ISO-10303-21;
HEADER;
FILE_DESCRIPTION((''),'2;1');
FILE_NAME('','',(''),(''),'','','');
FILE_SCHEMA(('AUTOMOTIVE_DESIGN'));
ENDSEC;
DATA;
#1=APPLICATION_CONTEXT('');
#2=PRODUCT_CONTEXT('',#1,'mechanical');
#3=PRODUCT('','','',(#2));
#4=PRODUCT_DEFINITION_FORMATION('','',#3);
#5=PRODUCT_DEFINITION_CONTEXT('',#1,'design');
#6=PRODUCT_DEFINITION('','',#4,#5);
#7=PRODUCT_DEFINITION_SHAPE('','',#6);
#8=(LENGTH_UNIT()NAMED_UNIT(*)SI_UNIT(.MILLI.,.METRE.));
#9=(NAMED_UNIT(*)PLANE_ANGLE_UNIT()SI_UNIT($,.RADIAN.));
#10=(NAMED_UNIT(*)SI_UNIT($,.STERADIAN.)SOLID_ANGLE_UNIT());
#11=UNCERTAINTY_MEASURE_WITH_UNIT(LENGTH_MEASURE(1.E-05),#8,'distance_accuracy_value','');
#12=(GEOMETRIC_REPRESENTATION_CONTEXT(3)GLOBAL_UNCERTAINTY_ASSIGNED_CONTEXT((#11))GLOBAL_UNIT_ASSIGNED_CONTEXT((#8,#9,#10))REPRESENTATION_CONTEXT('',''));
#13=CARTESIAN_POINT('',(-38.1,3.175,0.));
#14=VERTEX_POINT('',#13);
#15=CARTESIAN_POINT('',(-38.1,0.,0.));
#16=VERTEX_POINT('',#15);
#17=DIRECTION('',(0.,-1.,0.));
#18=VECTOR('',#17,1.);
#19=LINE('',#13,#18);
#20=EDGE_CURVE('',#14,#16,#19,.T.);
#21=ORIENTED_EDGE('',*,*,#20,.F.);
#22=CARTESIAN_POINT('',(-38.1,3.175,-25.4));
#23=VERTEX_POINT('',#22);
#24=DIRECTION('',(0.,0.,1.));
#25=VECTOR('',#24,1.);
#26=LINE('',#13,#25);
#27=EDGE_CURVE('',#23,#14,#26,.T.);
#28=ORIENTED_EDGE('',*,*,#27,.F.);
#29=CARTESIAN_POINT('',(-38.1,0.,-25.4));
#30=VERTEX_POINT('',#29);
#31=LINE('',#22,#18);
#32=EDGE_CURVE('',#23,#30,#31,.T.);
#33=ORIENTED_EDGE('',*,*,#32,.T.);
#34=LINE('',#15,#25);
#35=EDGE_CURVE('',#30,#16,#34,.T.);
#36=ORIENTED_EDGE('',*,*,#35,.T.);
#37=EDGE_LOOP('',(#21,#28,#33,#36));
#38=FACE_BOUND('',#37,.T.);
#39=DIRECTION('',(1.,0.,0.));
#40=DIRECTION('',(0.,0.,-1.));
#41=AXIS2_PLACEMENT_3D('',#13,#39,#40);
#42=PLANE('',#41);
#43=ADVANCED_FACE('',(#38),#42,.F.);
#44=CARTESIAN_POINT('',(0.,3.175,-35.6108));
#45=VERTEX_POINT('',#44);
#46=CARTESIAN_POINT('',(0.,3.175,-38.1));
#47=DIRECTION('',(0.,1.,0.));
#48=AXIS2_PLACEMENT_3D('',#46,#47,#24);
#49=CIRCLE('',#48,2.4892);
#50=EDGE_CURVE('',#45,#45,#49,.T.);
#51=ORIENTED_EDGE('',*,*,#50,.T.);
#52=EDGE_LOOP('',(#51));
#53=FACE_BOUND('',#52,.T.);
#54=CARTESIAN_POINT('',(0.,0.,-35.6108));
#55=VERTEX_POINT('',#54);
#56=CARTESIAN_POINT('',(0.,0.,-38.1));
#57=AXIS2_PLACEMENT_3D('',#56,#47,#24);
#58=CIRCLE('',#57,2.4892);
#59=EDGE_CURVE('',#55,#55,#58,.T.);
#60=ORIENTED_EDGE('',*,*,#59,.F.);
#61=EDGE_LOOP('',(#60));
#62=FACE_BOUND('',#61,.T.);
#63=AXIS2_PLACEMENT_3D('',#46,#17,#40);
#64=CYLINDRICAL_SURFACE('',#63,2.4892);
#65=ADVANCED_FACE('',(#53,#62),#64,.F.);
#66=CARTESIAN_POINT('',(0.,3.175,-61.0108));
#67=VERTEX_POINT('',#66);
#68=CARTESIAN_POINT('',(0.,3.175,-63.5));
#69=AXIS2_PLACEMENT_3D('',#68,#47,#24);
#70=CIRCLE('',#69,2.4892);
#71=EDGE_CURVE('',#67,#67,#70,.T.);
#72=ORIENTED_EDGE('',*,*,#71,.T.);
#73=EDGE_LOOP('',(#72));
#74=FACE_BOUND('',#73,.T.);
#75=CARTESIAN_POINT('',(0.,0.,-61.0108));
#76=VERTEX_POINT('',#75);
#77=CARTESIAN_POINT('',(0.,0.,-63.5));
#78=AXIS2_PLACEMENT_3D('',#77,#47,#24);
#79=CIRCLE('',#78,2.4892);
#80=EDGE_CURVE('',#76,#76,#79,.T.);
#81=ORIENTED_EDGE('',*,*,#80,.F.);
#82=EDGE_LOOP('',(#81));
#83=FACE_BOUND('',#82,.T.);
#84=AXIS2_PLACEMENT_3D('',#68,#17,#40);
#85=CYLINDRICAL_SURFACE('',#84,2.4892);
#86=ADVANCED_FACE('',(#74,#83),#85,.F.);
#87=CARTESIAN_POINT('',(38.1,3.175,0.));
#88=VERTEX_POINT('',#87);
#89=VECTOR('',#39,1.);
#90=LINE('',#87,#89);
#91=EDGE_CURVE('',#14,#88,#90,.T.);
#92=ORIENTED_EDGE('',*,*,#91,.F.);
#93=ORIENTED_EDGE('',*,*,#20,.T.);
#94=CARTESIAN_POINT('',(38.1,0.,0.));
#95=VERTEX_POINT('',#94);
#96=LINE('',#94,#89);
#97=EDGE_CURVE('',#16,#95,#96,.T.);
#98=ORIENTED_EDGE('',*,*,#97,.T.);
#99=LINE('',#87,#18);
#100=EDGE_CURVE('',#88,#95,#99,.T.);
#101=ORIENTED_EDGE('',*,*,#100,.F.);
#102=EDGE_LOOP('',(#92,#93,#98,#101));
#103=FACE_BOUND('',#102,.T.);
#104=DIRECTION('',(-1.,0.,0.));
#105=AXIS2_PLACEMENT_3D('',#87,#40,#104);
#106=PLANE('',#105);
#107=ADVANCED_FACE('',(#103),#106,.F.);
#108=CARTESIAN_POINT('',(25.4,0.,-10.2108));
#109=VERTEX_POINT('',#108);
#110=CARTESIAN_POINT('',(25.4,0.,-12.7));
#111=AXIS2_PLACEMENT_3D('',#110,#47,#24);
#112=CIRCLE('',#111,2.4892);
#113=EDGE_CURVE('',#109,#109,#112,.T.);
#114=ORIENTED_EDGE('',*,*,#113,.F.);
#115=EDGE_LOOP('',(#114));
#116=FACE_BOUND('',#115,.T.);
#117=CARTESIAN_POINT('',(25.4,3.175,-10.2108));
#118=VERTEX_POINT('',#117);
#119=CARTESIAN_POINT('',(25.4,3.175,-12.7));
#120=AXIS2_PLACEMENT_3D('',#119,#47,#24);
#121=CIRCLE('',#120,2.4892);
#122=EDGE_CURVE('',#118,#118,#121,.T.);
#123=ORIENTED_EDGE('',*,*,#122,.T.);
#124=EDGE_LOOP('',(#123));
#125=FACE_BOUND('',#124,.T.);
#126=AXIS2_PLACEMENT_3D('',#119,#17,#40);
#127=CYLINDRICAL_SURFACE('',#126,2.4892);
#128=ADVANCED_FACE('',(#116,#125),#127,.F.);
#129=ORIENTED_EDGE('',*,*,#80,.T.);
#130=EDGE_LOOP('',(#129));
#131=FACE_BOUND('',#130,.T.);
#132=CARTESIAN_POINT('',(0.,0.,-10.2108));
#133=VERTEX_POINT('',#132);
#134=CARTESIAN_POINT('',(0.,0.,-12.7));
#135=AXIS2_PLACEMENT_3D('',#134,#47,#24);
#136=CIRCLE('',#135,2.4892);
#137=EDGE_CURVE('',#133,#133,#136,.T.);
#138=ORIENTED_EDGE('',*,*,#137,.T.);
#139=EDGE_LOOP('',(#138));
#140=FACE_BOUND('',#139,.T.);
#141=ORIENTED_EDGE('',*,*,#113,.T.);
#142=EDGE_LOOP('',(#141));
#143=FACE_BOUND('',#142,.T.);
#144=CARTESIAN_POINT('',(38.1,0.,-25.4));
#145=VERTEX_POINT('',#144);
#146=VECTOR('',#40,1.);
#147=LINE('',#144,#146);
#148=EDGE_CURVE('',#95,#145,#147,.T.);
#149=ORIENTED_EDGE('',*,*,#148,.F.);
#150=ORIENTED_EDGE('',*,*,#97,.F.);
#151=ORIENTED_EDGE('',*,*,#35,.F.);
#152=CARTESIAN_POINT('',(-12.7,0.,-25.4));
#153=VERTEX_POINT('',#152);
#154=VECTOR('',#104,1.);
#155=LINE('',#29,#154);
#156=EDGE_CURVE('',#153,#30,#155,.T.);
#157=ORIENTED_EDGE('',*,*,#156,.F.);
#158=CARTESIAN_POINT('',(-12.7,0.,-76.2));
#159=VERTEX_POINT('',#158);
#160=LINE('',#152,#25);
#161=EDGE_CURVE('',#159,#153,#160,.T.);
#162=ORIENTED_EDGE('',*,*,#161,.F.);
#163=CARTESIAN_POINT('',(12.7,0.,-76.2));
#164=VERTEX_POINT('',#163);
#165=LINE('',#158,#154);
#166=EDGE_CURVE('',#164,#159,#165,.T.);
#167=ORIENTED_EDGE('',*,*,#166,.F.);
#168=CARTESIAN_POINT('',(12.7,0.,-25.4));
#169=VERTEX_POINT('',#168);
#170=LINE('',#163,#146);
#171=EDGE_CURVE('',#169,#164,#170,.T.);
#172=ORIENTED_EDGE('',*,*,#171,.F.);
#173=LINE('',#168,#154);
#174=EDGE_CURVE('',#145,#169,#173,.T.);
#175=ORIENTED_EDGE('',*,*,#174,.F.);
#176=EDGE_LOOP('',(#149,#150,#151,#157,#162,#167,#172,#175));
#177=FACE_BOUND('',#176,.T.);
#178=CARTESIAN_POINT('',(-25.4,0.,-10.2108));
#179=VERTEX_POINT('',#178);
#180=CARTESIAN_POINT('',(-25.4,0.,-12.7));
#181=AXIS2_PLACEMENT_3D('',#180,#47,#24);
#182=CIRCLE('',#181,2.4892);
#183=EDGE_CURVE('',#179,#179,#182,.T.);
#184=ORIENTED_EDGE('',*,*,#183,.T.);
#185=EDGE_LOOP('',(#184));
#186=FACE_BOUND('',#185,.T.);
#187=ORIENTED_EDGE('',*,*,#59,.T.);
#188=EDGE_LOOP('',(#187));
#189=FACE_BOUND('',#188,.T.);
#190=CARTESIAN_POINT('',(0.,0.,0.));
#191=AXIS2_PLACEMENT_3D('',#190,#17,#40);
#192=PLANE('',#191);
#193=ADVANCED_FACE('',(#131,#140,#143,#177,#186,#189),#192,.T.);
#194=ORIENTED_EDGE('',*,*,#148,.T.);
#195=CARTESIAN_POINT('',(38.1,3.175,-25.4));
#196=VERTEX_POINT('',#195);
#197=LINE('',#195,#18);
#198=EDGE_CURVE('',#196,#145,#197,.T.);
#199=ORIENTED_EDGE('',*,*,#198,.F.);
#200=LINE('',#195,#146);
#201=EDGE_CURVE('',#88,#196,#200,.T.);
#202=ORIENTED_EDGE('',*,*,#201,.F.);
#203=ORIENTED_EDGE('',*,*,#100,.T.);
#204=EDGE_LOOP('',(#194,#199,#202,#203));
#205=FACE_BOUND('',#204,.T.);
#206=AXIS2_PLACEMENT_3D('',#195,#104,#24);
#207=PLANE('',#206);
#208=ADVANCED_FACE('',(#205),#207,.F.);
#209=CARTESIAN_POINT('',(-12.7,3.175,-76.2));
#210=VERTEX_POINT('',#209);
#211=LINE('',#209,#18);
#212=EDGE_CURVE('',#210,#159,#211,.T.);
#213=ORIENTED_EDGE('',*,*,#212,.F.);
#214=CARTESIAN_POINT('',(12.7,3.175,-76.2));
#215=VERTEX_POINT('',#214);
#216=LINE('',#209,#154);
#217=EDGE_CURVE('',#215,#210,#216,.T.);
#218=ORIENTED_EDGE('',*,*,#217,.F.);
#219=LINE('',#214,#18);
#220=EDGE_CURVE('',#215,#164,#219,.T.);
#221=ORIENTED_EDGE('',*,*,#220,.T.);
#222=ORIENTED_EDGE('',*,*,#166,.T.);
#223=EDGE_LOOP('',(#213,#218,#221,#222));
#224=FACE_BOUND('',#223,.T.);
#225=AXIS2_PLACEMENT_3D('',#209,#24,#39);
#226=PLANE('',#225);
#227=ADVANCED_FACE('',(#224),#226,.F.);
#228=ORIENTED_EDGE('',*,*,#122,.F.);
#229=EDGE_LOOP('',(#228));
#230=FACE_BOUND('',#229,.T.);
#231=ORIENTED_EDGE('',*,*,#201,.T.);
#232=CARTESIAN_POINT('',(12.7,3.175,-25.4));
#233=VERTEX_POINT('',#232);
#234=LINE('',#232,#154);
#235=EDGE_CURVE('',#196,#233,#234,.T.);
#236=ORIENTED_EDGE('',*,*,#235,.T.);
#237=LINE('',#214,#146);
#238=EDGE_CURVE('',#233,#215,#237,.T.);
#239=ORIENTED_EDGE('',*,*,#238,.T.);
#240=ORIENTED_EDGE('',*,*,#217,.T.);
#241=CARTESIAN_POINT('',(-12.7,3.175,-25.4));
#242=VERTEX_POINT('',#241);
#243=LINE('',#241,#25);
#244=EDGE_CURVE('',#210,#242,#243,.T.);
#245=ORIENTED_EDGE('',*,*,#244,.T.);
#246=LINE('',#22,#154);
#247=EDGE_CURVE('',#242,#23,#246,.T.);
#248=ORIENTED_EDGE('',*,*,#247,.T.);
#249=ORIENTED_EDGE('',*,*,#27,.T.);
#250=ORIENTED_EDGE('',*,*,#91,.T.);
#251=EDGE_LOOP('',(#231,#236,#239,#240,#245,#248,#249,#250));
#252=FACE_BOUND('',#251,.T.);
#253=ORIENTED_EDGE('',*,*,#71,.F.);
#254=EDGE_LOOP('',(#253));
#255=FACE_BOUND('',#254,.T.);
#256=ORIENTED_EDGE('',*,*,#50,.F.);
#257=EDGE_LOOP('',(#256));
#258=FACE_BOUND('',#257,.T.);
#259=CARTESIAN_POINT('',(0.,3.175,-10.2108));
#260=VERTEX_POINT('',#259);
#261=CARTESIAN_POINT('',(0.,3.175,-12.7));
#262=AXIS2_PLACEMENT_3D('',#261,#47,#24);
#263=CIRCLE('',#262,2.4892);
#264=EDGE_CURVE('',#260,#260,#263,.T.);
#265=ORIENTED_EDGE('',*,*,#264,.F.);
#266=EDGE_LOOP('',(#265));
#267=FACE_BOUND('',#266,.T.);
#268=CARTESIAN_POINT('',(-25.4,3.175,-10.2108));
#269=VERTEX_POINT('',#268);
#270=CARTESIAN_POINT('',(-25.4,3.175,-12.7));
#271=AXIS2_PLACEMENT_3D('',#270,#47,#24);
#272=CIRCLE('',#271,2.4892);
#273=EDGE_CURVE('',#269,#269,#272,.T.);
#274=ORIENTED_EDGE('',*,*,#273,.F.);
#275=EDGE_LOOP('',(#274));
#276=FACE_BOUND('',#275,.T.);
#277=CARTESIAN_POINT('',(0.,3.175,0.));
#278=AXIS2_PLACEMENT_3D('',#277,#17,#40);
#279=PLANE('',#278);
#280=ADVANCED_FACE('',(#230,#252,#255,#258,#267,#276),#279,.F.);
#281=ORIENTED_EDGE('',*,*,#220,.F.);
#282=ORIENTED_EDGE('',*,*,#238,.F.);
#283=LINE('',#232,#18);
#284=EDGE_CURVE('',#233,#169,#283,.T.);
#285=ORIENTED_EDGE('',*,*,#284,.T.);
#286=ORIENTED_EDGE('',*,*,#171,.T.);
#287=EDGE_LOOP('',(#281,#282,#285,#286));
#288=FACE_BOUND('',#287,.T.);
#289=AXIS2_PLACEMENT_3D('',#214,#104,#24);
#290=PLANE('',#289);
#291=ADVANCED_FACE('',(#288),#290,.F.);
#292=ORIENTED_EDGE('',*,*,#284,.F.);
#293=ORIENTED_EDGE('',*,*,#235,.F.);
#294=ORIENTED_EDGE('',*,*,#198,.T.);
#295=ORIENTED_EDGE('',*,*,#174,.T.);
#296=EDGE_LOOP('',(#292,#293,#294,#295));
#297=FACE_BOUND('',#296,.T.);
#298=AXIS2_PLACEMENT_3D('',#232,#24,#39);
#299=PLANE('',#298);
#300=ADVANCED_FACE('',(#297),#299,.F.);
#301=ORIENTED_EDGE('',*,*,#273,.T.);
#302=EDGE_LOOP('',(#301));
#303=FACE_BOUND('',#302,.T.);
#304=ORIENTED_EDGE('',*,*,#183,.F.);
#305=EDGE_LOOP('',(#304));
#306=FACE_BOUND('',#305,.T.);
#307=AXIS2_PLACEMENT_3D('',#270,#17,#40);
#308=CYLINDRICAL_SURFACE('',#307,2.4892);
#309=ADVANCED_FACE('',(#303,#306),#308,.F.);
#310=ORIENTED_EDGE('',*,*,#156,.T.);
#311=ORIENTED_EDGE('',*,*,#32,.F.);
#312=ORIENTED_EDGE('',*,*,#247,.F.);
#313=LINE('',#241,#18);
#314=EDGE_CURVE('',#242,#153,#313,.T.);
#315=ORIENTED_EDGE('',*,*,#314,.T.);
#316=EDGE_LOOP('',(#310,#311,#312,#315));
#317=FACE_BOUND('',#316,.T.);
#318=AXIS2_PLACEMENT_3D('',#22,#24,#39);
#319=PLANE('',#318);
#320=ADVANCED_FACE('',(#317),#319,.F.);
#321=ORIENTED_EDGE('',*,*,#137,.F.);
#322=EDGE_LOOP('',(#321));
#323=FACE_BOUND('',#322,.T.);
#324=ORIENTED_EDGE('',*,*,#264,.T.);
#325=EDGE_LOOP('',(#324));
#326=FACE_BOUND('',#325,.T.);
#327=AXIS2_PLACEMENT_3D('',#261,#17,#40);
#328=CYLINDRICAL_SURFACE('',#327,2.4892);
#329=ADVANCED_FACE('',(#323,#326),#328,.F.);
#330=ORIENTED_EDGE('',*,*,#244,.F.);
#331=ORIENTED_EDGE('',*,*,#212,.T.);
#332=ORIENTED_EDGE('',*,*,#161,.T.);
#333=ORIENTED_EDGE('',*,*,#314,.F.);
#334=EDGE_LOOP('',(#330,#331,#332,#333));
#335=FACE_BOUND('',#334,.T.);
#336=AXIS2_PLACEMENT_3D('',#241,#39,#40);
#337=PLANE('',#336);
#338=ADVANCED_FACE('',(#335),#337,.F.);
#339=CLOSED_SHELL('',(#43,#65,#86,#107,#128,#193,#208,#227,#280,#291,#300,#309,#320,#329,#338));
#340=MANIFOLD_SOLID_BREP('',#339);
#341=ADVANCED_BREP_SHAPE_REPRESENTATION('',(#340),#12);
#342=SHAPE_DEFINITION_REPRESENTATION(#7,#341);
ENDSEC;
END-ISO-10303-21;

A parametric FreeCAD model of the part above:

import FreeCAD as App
import Part
import Sketcher
Q = App.Units.Quantity

doc = App.newDocument("Part")
body = doc.addObject("PartDesign::Body", "Body")

sketch1 = body.newObject("Sketcher::SketchObject", "Sketch")
sketch1.AttachmentSupport = (doc.getObject("XZ_Plane"), [""])
sketch1.MapMode = "FlatFace"
sketch1.addGeometry(Part.LineSegment(App.Vector(-38.1, 0, 0), App.Vector(38.1, 0, 0)), False)
sketch1.addGeometry(Part.LineSegment(App.Vector(38.1, 0, 0), App.Vector(38.1, -25.4, 0)), False)
sketch1.addGeometry(Part.LineSegment(App.Vector(38.1, -25.4, 0), App.Vector(12.7, -25.4, 0)), False)
sketch1.addGeometry(Part.LineSegment(App.Vector(12.7, -25.4, 0), App.Vector(12.7, -76.2, 0)), False)
sketch1.addGeometry(Part.LineSegment(App.Vector(12.7, -76.2, 0), App.Vector(-12.7, -76.2, 0)), False)
sketch1.addGeometry(Part.LineSegment(App.Vector(-12.7, -76.2, 0), App.Vector(-12.7, -25.4, 0)), False)
sketch1.addGeometry(Part.LineSegment(App.Vector(-12.7, -25.4, 0), App.Vector(-38.1, -25.4, 0)), False)
sketch1.addGeometry(Part.LineSegment(App.Vector(-38.1, -25.4, 0), App.Vector(-38.1, 0, 0)), False)
sketch1.addGeometry(Part.Circle(App.Vector(25.4, -12.7, 0), App.Vector(0, 0, 1), 2.4892), False)
sketch1.addGeometry(Part.Circle(App.Vector(0, -12.7, 0), App.Vector(0, 0, 1), 2.4892), False)
sketch1.addGeometry(Part.Circle(App.Vector(-25.4, -12.7, 0), App.Vector(0, 0, 1), 2.4892), False)
sketch1.addGeometry(Part.Circle(App.Vector(0, -38.1, 0), App.Vector(0, 0, 1), 2.4892), False)
sketch1.addGeometry(Part.Circle(App.Vector(0, -63.5, 0), App.Vector(0, 0, 1), 2.4892), False)
sketch1.addConstraint(Sketcher.Constraint("Coincident", 0, 2, 1, 1))
sketch1.addConstraint(Sketcher.Constraint("Coincident", 1, 2, 2, 1))
sketch1.addConstraint(Sketcher.Constraint("Coincident", 2, 2, 3, 1))
sketch1.addConstraint(Sketcher.Constraint("Coincident", 3, 2, 4, 1))
sketch1.addConstraint(Sketcher.Constraint("Coincident", 4, 2, 5, 1))
sketch1.addConstraint(Sketcher.Constraint("Coincident", 5, 2, 6, 1))
sketch1.addConstraint(Sketcher.Constraint("Coincident", 6, 2, 7, 1))
sketch1.addConstraint(Sketcher.Constraint("Coincident", 7, 2, 0, 1))
sketch1.addConstraint(Sketcher.Constraint("Horizontal", 0))
sketch1.addConstraint(Sketcher.Constraint("Vertical", 1))
sketch1.addConstraint(Sketcher.Constraint("Horizontal", 2))
sketch1.addConstraint(Sketcher.Constraint("Vertical", 3))
sketch1.addConstraint(Sketcher.Constraint("Horizontal", 4))
sketch1.addConstraint(Sketcher.Constraint("Vertical", 5))
sketch1.addConstraint(Sketcher.Constraint("Horizontal", 6))
sketch1.addConstraint(Sketcher.Constraint("Vertical", 7))
sketch1.addConstraint(Sketcher.Constraint("Equal", 8, 9))
sketch1.addConstraint(Sketcher.Constraint("Equal", 9, 10))
sketch1.addConstraint(Sketcher.Constraint("Equal", 10, 11))
sketch1.addConstraint(Sketcher.Constraint("Equal", 11, 12))
sketch1.addConstraint(Sketcher.Constraint("Symmetric", 0, 2, 7, 2, -1, 1))
sketch1.addConstraint(Sketcher.Constraint("Symmetric", 8, 3, 10, 3, -2))
sketch1.addConstraint(Sketcher.Constraint("Symmetric", 2, 2, 5, 2, -2))
sketch1.addConstraint(Sketcher.Constraint("PointOnObject", 9, 3, -2))
sketch1.addConstraint(Sketcher.Constraint("PointOnObject", 11, 3, -2))
sketch1.addConstraint(Sketcher.Constraint("PointOnObject", 12, 3, -2))
sketch1.addConstraint(Sketcher.Constraint("Horizontal", 8, 3, 9, 3))
sketch1.addConstraint(Sketcher.Constraint("Equal", 2, 4))
sketch1.addConstraint(Sketcher.Constraint("Equal", 6, 1))
sketch1.addConstraint(Sketcher.Constraint("DistanceX", 0, 1, 0, 2, Q("3 in")))
sketch1.addConstraint(Sketcher.Constraint("DistanceY", 3, 2, 3, 1, Q("2 in")))
sketch1.addConstraint(Sketcher.Constraint("Diameter", 8, Q("0.196 in")))
sketch1.addConstraint(Sketcher.Constraint("DistanceX", -1, 1, 8, 3, Q("1 in")))
sketch1.addConstraint(Sketcher.Constraint("DistanceY", 11, 3, 9, 3, Q("1 in")))
sketch1.addConstraint(Sketcher.Constraint("DistanceY", 12, 3, 11, 3, Q("1 in")))
sketch1.addConstraint(Sketcher.Constraint("DistanceY", 8, 3, -1, 1, Q("0.5 in")))
pad1 = body.newObject("PartDesign::Pad", "Pad")
pad1.Profile = sketch1
pad1.Length = Q("0.125 in")
pad1.Reversed = True

doc.recompute()
